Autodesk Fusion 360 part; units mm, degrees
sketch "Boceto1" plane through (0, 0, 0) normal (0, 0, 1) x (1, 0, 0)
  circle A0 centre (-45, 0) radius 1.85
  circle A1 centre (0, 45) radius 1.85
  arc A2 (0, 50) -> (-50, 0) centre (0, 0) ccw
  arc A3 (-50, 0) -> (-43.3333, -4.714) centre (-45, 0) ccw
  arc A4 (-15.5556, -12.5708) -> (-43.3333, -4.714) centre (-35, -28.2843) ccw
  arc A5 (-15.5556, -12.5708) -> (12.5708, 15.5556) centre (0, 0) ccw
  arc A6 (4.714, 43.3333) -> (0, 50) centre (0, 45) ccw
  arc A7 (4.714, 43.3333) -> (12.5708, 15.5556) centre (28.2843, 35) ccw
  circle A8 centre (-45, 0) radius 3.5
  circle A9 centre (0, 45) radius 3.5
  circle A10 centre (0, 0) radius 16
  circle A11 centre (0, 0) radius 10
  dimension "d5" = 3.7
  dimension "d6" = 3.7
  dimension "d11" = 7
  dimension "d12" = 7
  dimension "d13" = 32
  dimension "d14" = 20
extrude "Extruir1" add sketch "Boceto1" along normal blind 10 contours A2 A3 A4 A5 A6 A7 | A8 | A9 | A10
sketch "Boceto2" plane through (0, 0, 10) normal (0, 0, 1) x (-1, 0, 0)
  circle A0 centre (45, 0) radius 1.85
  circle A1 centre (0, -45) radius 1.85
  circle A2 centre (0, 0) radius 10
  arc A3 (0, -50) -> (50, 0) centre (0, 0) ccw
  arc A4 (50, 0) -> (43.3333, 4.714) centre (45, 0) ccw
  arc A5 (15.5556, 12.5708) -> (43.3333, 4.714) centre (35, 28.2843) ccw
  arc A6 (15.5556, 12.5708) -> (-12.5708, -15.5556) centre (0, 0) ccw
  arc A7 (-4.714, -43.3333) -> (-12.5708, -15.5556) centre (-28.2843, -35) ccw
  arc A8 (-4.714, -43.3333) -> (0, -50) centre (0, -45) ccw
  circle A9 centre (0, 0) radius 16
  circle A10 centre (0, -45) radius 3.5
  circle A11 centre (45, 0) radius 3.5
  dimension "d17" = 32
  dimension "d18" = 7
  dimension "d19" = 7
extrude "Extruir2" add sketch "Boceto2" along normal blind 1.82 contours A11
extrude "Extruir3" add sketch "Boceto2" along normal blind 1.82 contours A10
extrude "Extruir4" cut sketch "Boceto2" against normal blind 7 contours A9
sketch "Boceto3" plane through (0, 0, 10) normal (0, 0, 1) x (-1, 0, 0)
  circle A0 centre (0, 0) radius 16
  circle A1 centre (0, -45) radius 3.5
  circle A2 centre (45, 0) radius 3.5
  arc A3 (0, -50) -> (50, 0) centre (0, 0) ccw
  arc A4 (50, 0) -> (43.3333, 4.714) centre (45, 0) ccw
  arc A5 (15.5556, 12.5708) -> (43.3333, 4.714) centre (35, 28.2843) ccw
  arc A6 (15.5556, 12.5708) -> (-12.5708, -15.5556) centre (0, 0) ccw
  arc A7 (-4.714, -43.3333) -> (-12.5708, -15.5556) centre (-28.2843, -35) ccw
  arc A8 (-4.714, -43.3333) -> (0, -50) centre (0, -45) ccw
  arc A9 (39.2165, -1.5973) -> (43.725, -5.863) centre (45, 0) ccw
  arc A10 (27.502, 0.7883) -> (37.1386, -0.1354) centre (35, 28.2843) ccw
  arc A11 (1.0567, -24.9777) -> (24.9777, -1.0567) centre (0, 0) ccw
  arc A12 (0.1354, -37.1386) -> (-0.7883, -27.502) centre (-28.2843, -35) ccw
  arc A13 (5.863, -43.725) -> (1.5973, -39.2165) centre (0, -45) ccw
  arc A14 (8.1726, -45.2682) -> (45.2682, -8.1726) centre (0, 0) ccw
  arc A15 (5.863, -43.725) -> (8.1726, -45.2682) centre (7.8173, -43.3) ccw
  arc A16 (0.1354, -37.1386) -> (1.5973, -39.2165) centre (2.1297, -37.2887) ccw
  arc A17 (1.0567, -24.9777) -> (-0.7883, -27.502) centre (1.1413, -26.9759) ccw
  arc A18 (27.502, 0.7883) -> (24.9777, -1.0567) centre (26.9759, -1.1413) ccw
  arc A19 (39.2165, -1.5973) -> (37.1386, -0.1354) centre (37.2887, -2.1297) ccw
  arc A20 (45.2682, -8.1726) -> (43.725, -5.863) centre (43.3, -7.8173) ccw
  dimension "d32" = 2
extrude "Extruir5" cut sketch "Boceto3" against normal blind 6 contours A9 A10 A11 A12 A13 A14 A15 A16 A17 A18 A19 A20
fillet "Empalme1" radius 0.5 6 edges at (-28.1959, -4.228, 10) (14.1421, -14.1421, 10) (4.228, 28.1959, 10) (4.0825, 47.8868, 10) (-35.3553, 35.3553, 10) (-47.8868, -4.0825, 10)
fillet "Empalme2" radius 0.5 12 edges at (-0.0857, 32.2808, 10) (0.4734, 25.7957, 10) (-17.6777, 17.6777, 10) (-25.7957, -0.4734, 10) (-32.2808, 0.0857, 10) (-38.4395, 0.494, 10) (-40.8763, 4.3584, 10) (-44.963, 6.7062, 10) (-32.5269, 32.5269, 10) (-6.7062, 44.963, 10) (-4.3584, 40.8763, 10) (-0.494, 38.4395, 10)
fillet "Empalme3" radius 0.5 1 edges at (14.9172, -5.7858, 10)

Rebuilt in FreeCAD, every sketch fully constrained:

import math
import FreeCAD as App
import Part
import Sketcher
from FreeCAD import Vector
Q = App.Units.Quantity


def edges_at(feature, points):
    """Names of the edges that pass closest to the given points."""
    edges = feature.Shape.Edges
    near = lambda p: min(range(len(edges)), key=lambda i: edges[i].distToShape(Part.Vertex(*p))[0])
    return sorted({f"Edge{near(p) + 1}" for p in points})

doc = App.newDocument("Part")
body = doc.addObject("PartDesign::Body", "Body")

# Sketch on XY plane
sketch1 = body.newObject("Sketcher::SketchObject", "Sketch")
sketch1.AttachmentSupport = (doc.getObject("XY_Plane"), [""])
sketch1.MapMode = "FlatFace"
sketch1.addGeometry([
    Part.ArcOfCircle(Part.Circle(Vector(0, 45, 0), Vector(0, 0, 1), 5), math.radians(-19), math.radians(90)),  # 0
    Part.ArcOfCircle(Part.Circle(Vector(0, 0, 0), Vector(0, 0, 1), 50), math.radians(90), math.radians(180)),  # 1
    Part.ArcOfCircle(Part.Circle(Vector(-45, 0, 0), Vector(0, 0, 1), 5), math.radians(180), math.radians(289)),  # 2
    Part.ArcOfCircle(Part.Circle(Vector(-35, -28.3, 0), Vector(0, 0, 1), 25), math.radians(39), math.radians(109)),  # 3
    Part.ArcOfCircle(Part.Circle(Vector(0, 0, 0), Vector(0, 0, 1), 20), math.radians(-141), math.radians(51)),  # 4
    Part.ArcOfCircle(Part.Circle(Vector(28.3, 35, 0), Vector(0, 0, 1), 25), math.radians(161), math.radians(231)),  # 5
    Part.Circle(Vector(-45, 0, 0), Vector(0, 0, 1), 1.9),  # 6
    Part.Circle(Vector(0, 0, 0), Vector(0, 0, 1), 10),  # 7
    Part.Circle(Vector(0, 45, 0), Vector(0, 0, 1), 1.9),  # 8
], False)
sketch1.addConstraint([
    Sketcher.Constraint("Tangent", 0, 2, 1, 1),
    Sketcher.Constraint("Tangent", 1, 2, 2, 1),
    Sketcher.Constraint("Tangent", 2, 2, 3, 2),
    Sketcher.Constraint("Tangent", 3, 1, 4, 1),
    Sketcher.Constraint("Tangent", 4, 2, 5, 2),
    Sketcher.Constraint("Tangent", 5, 1, 0, 1),
    Sketcher.Constraint("Coincident", 1, 3, -1, 1),
    Sketcher.Constraint("Coincident", 4, 3, -1, 1),
    Sketcher.Constraint("Coincident", 7, 3, -1, 1),
    Sketcher.Constraint("Coincident", 6, 3, 2, 3),
    Sketcher.Constraint("Coincident", 8, 3, 0, 3),
    Sketcher.Constraint("Equal", 0, 2),
    Sketcher.Constraint("Equal", 3, 5),
    Sketcher.Constraint("Equal", 6, 8),
    Sketcher.Constraint("PointOnObject", 0, 3, -2),
    Sketcher.Constraint("PointOnObject", 2, 3, -1),
    Sketcher.Constraint("Diameter", 7, Q("20 mm")),
    Sketcher.Constraint("Radius", 4, Q("20 mm")),
    Sketcher.Constraint("Diameter", 6, Q("3.7 mm")),
    Sketcher.Constraint("Radius", 0, Q("5 mm")),
    Sketcher.Constraint("Radius", 1, Q("50 mm")),
    Sketcher.Constraint("Radius", 3, Q("25 mm")),
])
pad1 = body.newObject("PartDesign::Pad", "Pad")
pad1.Profile = sketch1
pad1.Length = 10

# Sketch on XY plane
sketch2 = body.newObject("Sketcher::SketchObject", "Sketch001")
sketch2.AttachmentSupport = (doc.getObject("XY_Plane"), [""])
sketch2.MapMode = "FlatFace"
sketch2.AttachmentOffset = App.Placement(Vector(0, 0, 10), App.Rotation())
sketch2.addGeometry([
    Part.Circle(Vector(-45, 0, 0), Vector(0, 0, 1), 3.5),
    Part.Circle(Vector(-45, 0, 0), Vector(0, 0, 1), 1.9),
], False)
sketch2.addConstraint([
    Sketcher.Constraint("Coincident", 1, 3, 0, 3),
    Sketcher.Constraint("PointOnObject", 0, 3, -1),
    Sketcher.Constraint("Diameter", 0, Q("7 mm")),
    Sketcher.Constraint("Diameter", 1, Q("3.7 mm")),
    Sketcher.Constraint("DistanceX", 0, 3, -1, 1, Q("45 mm")),
])
pad2 = body.newObject("PartDesign::Pad", "Pad001")
pad2.Profile = sketch2
pad2.Length = 1.82

# Sketch on XY plane
sketch3 = body.newObject("Sketcher::SketchObject", "Sketch002")
sketch3.AttachmentSupport = (doc.getObject("XY_Plane"), [""])
sketch3.MapMode = "FlatFace"
sketch3.AttachmentOffset = App.Placement(Vector(0, 0, 10), App.Rotation())
sketch3.addGeometry([
    Part.Circle(Vector(0, 45, 0), Vector(0, 0, 1), 3.5),
    Part.Circle(Vector(0, 45, 0), Vector(0, 0, 1), 1.9),
], False)
sketch3.addConstraint([
    Sketcher.Constraint("Coincident", 1, 3, 0, 3),
    Sketcher.Constraint("PointOnObject", 0, 3, -2),
    Sketcher.Constraint("Diameter", 0, Q("7 mm")),
    Sketcher.Constraint("Diameter", 1, Q("3.7 mm")),
    Sketcher.Constraint("DistanceY", -1, 1, 0, 3, Q("45 mm")),
])
pad3 = body.newObject("PartDesign::Pad", "Pad002")
pad3.Profile = sketch3
pad3.Length = 1.82

# Sketch on XY plane
sketch4 = body.newObject("Sketcher::SketchObject", "Sketch003")
sketch4.AttachmentSupport = (doc.getObject("XY_Plane"), [""])
sketch4.MapMode = "FlatFace"
sketch4.AttachmentOffset = App.Placement(Vector(0, 0, 10), App.Rotation())
sketch4.addGeometry([
    Part.Circle(Vector(0, 0, 0), Vector(0, 0, 1), 16),
    Part.Circle(Vector(0, 0, 0), Vector(0, 0, 1), 10),
], False)
sketch4.addConstraint([
    Sketcher.Constraint("Coincident", 0, 3, -1, 1),
    Sketcher.Constraint("Coincident", 1, 3, -1, 1),
    Sketcher.Constraint("Diameter", 0, Q("32 mm")),
    Sketcher.Constraint("Diameter", 1, Q("20 mm")),
])
pocket1 = body.newObject("PartDesign::Pocket", "Pocket")
pocket1.Profile = sketch4
pocket1.Length = 7

# Sketch on XY plane
sketch5 = body.newObject("Sketcher::SketchObject", "Sketch004")
sketch5.AttachmentSupport = (doc.getObject("XY_Plane"), [""])
sketch5.MapMode = "FlatFace"
sketch5.AttachmentOffset = App.Placement(Vector(0, 0, 10), App.Rotation())
sketch5.addGeometry([
    Part.ArcOfCircle(Part.Circle(Vector(-45, 0, 0), Vector(0, 0, 1), 6), math.radians(15), math.radians(78)),  # 0
    Part.ArcOfCircle(Part.Circle(Vector(-37.3, 2.1, 0), Vector(0, 0, 1), 2), math.radians(-165), math.radians(-86)),  # 1
    Part.ArcOfCircle(Part.Circle(Vector(-35, -28.3, 0), Vector(0, 0, 1), 28.5), math.radians(74.75), math.radians(94.3)),  # 2
    Part.ArcOfCircle(Part.Circle(Vector(-27, 1.1, 0), Vector(0, 0, 1), 2), math.radians(-105), math.radians(-2)),  # 3
    Part.ArcOfCircle(Part.Circle(Vector(0, 0, 0), Vector(0, 0, 1), 25), math.radians(92), math.radians(178)),  # 4
    Part.ArcOfCircle(Part.Circle(Vector(-1.1, 27, 0), Vector(0, 0, 1), 2), math.radians(-88), math.radians(15)),  # 5
    Part.ArcOfCircle(Part.Circle(Vector(28.3, 35, 0), Vector(0, 0, 1), 28.5), math.radians(175.7), math.radians(195.25)),  # 6
    Part.ArcOfCircle(Part.Circle(Vector(-2.1, 37.3, 0), Vector(0, 0, 1), 2), math.radians(-4), math.radians(75)),  # 7
    Part.ArcOfCircle(Part.Circle(Vector(0, 45, 0), Vector(0, 0, 1), 6), math.radians(-168), math.radians(-105)),  # 8
    Part.ArcOfCircle(Part.Circle(Vector(-7.8, 43.3, 0), Vector(0, 0, 1), 2), math.radians(12), math.radians(100)),  # 9
    Part.ArcOfCircle(Part.Circle(Vector(0, 0, 0), Vector(0, 0, 1), 46), math.radians(100), math.radians(170)),  # 10
    Part.ArcOfCircle(Part.Circle(Vector(-43.3, 7.8, 0), Vector(0, 0, 1), 2), math.radians(170), math.radians(258)),  # 11
], False)
sketch5.addConstraint([
    Sketcher.Constraint("Tangent", 0, 1, 1, 1),
    Sketcher.Constraint("Tangent", 1, 2, 2, 2),
    Sketcher.Constraint("Tangent", 2, 1, 3, 1),
    Sketcher.Constraint("Tangent", 3, 2, 4, 2),
    Sketcher.Constraint("Tangent", 4, 1, 5, 1),
    Sketcher.Constraint("Tangent", 5, 2, 6, 2),
    Sketcher.Constraint("Tangent", 6, 1, 7, 1),
    Sketcher.Constraint("Tangent", 7, 2, 8, 2),
    Sketcher.Constraint("Tangent", 8, 1, 9, 1),
    Sketcher.Constraint("Tangent", 9, 2, 10, 1),
    Sketcher.Constraint("Tangent", 10, 2, 11, 1),
    Sketcher.Constraint("Tangent", 11, 2, 0, 2),
    Sketcher.Constraint("Coincident", 4, 3, -1, 1),
    Sketcher.Constraint("Coincident", 10, 3, -1, 1),
    Sketcher.Constraint("Equal", 1, 3),
    Sketcher.Constraint("Equal", 3, 5),
    Sketcher.Constraint("Equal", 5, 7),
    Sketcher.Constraint("Equal", 0, 8),
    Sketcher.Constraint("Equal", 7, 9),
    Sketcher.Constraint("Equal", 9, 11),
    Sketcher.Constraint("PointOnObject", 0, 3, -1),
    Sketcher.Constraint("PointOnObject", 8, 3, -2),
    Sketcher.Constraint("Radius", 1, Q("2 mm")),
    Sketcher.Constraint("Radius", 0, Q("6 mm")),
    Sketcher.Constraint("Radius", 4, Q("25 mm")),
    Sketcher.Constraint("Radius", 10, Q("46 mm")),
    Sketcher.Constraint("DistanceX", 0, 3, -1, 1, Q("45 mm")),
    Sketcher.Constraint("DistanceY", -1, 1, 6, 3, Q("35 mm")),
    Sketcher.Constraint("DistanceY", -1, 1, 8, 3, Q("45 mm")),
    Sketcher.Constraint("Radius", 2, Q("28.5018 mm")),
    Sketcher.Constraint("Radius", 6, Q("28.4983 mm")),
    Sketcher.Constraint("DistanceY", 0, 1, 11, 3, Q("6.22 mm")),
    Sketcher.Constraint("DistanceX", 1, 3, 1, 2, Q("0.15 mm")),
    Sketcher.Constraint("DistanceX", 9, 3, 7, 2, Q("6.22 mm")),
])
pocket2 = body.newObject("PartDesign::Pocket", "Pocket001")
pocket2.Profile = sketch5
pocket2.Length = 6
doc.recompute()

fillet = body.newObject("PartDesign::Fillet", "Fillet")
fillet.Base = (pocket2, edges_at(pocket2, [
    (-28.196, -4.228, 10),
    (14.142, -14.142, 10),
    (4.228, 28.196, 10),
    (4.082, 47.887, 10),
    (-35.355, 35.355, 10),
    (-47.887, -4.082, 10),
]))
fillet.Radius = 0.5
doc.recompute()

fillet2 = body.newObject("PartDesign::Fillet", "Fillet001")
fillet2.Base = (fillet, edges_at(fillet, [
    (-0.086, 32.281, 10),
    (0.473, 25.796, 10),
    (-17.678, 17.678, 10),
    (-25.796, -0.473, 10),
    (-32.281, 0.086, 10),
    (-38.44, 0.494, 10),
    (-40.876, 4.358, 10),
    (-44.963, 6.706, 10),
    (-32.527, 32.527, 10),
    (-6.706, 44.963, 10),
    (-4.358, 40.876, 10),
    (-0.494, 38.44, 10),
]))
fillet2.Radius = 0.5
doc.recompute()

fillet3 = body.newObject("PartDesign::Fillet", "Fillet002")
fillet3.Base = (fillet2, edges_at(fillet2, [(14.917, -5.786, 10)]))
fillet3.Radius = 0.5

doc.recompute()
